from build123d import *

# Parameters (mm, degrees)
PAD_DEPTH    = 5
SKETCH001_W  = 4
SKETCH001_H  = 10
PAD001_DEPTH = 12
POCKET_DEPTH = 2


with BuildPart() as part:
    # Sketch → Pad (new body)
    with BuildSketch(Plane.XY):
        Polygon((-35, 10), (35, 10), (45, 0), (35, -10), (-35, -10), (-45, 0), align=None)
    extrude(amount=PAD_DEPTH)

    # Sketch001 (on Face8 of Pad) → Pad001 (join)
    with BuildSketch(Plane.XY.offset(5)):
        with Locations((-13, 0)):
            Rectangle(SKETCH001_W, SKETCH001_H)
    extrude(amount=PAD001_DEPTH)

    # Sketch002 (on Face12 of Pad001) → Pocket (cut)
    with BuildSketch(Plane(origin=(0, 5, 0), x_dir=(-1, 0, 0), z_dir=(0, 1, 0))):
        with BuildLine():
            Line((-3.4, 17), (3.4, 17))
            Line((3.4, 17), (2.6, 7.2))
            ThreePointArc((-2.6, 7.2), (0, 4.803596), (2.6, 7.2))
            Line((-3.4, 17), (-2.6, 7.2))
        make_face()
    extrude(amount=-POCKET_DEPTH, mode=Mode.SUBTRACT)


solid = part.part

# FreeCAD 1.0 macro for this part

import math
import FreeCAD as App
import Part
import Sketcher

doc = App.newDocument("Part")
body = doc.addObject("PartDesign::Body", "Body")

# Sketch on XY plane
sketch1 = doc.addObject("Sketcher::SketchObject", "Sketch")
body.addObject(sketch1)
sketch1.AttachmentSupport = (doc.XY_Plane, [""])
sketch1.MapMode = "FlatFace"
sketch1.addGeometry([
    Part.LineSegment(App.Vector(35, 10, 0), App.Vector(-35, 10, 0)),  # 0
    Part.LineSegment(App.Vector(-35, 10, 0), App.Vector(-45, 0, 0)),  # 1
    Part.LineSegment(App.Vector(-45, 0, 0), App.Vector(-35, -10, 0)),  # 2
    Part.LineSegment(App.Vector(-35, -10, 0), App.Vector(35, -10, 0)),  # 3
    Part.LineSegment(App.Vector(35, -10, 0), App.Vector(45, 0, 0)),  # 4
    Part.LineSegment(App.Vector(45, 0, 0), App.Vector(35, 10, 0)),  # 5
], False)
sketch1.addConstraint([
    Sketcher.Constraint("Coincident", 0, 2, 1, 1),
    Sketcher.Constraint("Coincident", 1, 2, 2, 1),
    Sketcher.Constraint("Coincident", 2, 2, 3, 1),
    Sketcher.Constraint("Coincident", 3, 2, 4, 1),
    Sketcher.Constraint("Coincident", 4, 2, 5, 1),
    Sketcher.Constraint("Coincident", 5, 2, 0, 1),
    Sketcher.Constraint("Horizontal", 0),
    Sketcher.Constraint("Horizontal", 3),
    Sketcher.Constraint("Symmetric", 0, 2, 3, 2, -1, 1),
    Sketcher.Constraint("Symmetric", 1, 2, 4, 2, -1, 1),
    Sketcher.Constraint("PointOnObject", 1, 2, -1),
    Sketcher.Constraint("Perpendicular", 1, 2),
    Sketcher.Constraint("Perpendicular", 4, 5),
    Sketcher.Constraint("Vertical", 0, 2, 2, 2),
    Sketcher.Constraint("DistanceX", 0, 2, 0, 1, 70.0),
    Sketcher.Constraint("DistanceY", -1, 1, 0, 2, 10.0),
])
pad1 = doc.addObject("PartDesign::Pad", "Pad")
body.addObject(pad1)
pad1.Profile = sketch1
pad1.Length = 5

# Sketch on XY plane
sketch2 = doc.addObject("Sketcher::SketchObject", "Sketch001")
body.addObject(sketch2)
sketch2.AttachmentSupport = (doc.XY_Plane, [""])
sketch2.MapMode = "FlatFace"
sketch2.AttachmentOffset = App.Placement(App.Vector(0, 0, 5), App.Rotation())
sketch2.addGeometry([
    Part.LineSegment(App.Vector(-15, 5, 0), App.Vector(-15, -5, 0)),
    Part.LineSegment(App.Vector(-15, -5, 0), App.Vector(-11, -5, 0)),
    Part.LineSegment(App.Vector(-11, -5, 0), App.Vector(-11, 5, 0)),
    Part.LineSegment(App.Vector(-11, 5, 0), App.Vector(-15, 5, 0)),
], False)
sketch2.addConstraint([
    Sketcher.Constraint("Coincident", 0, 2, 1, 1),
    Sketcher.Constraint("Coincident", 1, 2, 2, 1),
    Sketcher.Constraint("Coincident", 2, 2, 3, 1),
    Sketcher.Constraint("Coincident", 3, 2, 0, 1),
    Sketcher.Constraint("Vertical", 0),
    Sketcher.Constraint("Horizontal", 1),
    Sketcher.Constraint("Vertical", 2),
    Sketcher.Constraint("Horizontal", 3),
    Sketcher.Constraint("DistanceX", 1, 1, 1, 2, 4.0),
    Sketcher.Constraint("DistanceY", 0, 2, 0, 1, 10.0),
    Sketcher.Constraint("DistanceX", 0, 2, -1, 1, 15.0),
    Sketcher.Constraint("DistanceY", 0, 2, -1, 1, 5.0),
])
pad2 = doc.addObject("PartDesign::Pad", "Pad001")
body.addObject(pad2)
pad2.Profile = sketch2
pad2.Length = 12

# Sketch on XZ plane
sketch3 = doc.addObject("Sketcher::SketchObject", "Sketch002")
body.addObject(sketch3)
sketch3.AttachmentSupport = (doc.XZ_Plane, [""])
sketch3.MapMode = "FlatFace"
sketch3.AttachmentOffset = App.Placement(App.Vector(0, 0, -5), App.Rotation())
sketch3.addGeometry([
    Part.LineSegment(App.Vector(-3.4, 17, 0), App.Vector(3.4, 17, 0)),
    Part.LineSegment(App.Vector(3.4, 17, 0), App.Vector(2.6, 7.2, 0)),
    Part.ArcOfCircle(Part.Circle(App.Vector(0, 7.4, 0), App.Vector(0, 0, 1), 2.6), math.radians(-175), math.radians(-5)),
    Part.LineSegment(App.Vector(-2.6, 7.2, 0), App.Vector(-3.4, 17, 0)),
], False)
sketch3.addConstraint([
    Sketcher.Constraint("Coincident", 0, 2, 1, 1),
    Sketcher.Constraint("Tangent", 1, 2, 2, 2),
    Sketcher.Constraint("Tangent", 2, 1, 3, 1),
    Sketcher.Constraint("Coincident", 3, 2, 0, 1),
    Sketcher.Constraint("Horizontal", 0),
    Sketcher.Constraint("Symmetric", 1, 2, 2, 1, -2),
    Sketcher.Constraint("DistanceX", 0, 1, 0, 2, 6.8),
    Sketcher.Constraint("DistanceY", -1, 1, 0, 2, 17.0),
    Sketcher.Constraint("DistanceX", 2, 1, 0, 2, 6.0),
    Sketcher.Constraint("DistanceY", -1, 1, 1, 2, 7.2),
])
pocket1 = doc.addObject("PartDesign::Pocket", "Pocket")
body.addObject(pocket1)
pocket1.Profile = sketch3
pocket1.Length = 2
pocket1.Reversed = True

doc.recompute()
